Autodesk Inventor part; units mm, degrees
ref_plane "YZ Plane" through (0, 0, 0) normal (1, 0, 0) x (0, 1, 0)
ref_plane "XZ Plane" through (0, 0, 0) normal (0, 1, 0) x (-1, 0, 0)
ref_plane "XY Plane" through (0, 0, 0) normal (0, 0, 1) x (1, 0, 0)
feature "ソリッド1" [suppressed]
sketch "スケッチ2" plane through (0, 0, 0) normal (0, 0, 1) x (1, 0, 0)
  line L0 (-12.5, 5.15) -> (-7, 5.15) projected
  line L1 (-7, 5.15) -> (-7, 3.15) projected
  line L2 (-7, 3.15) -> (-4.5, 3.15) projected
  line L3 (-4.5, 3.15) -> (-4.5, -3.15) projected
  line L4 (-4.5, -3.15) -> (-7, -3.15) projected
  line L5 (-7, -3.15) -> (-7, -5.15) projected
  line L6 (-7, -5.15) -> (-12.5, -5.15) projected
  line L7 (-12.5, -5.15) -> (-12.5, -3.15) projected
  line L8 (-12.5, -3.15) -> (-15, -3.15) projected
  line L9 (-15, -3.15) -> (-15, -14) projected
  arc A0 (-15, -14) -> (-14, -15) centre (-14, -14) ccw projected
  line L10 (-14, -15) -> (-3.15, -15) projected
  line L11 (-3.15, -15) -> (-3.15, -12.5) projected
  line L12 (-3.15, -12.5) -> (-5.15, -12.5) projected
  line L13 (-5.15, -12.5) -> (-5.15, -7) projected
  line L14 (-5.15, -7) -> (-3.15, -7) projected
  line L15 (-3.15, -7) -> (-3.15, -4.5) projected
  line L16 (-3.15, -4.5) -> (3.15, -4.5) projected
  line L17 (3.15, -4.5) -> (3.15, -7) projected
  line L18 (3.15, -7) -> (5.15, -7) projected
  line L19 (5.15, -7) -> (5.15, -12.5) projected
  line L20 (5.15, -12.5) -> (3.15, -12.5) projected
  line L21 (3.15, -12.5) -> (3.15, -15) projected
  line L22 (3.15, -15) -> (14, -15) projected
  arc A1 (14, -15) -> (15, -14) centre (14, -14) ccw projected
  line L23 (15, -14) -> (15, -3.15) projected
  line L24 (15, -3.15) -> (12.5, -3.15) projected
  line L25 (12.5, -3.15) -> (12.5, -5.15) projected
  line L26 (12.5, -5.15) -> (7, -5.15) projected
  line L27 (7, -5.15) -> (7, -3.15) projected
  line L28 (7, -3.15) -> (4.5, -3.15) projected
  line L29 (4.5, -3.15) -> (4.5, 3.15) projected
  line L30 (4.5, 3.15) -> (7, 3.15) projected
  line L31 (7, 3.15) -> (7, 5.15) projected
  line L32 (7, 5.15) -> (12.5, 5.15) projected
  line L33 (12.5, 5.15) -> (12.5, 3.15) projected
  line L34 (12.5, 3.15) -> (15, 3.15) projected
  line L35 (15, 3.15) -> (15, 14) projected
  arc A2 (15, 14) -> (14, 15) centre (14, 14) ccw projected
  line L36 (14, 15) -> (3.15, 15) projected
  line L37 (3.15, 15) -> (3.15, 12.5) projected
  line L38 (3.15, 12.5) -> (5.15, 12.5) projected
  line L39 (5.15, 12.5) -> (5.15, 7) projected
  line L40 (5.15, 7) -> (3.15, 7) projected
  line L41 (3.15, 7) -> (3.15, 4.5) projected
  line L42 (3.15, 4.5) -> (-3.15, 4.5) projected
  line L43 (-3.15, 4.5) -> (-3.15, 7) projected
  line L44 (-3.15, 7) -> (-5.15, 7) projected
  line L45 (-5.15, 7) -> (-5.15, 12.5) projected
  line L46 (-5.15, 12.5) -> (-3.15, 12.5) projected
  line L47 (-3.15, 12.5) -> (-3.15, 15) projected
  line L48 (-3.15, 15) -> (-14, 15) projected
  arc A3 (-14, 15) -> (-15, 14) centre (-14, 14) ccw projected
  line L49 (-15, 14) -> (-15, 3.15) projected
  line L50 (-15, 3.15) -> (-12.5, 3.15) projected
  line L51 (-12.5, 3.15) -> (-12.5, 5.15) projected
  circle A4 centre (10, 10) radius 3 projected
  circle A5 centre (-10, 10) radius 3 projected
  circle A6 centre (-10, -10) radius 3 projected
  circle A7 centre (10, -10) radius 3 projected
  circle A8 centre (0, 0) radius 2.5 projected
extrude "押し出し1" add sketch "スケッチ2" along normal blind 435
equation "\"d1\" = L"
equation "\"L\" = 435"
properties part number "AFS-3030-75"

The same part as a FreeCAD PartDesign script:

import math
import FreeCAD as App
import Part
import Sketcher

V = App.Vector

doc = App.newDocument("Part")
body = doc.addObject("PartDesign::Body", "Body")

# Sketch on XY plane
sketch1 = body.newObject("Sketcher::SketchObject", "Sketch")
sketch1.AttachmentSupport = (doc.getObject("XY_Plane"), [""])
sketch1.MapMode = "FlatFace"
sketch1.addGeometry(Part.LineSegment(V(-12.5, 3.15, 0), V(-12.5, 5.15, 0)), False)
sketch1.addGeometry(Part.LineSegment(V(-12.5, 5.15, 0), V(-7, 5.15, 0)), False)
sketch1.addGeometry(Part.LineSegment(V(-7, 5.15, 0), V(-7, 3.15, 0)), False)
sketch1.addGeometry(Part.LineSegment(V(-7, 3.15, 0), V(-4.5, 3.15, 0)), False)
sketch1.addGeometry(Part.LineSegment(V(-4.5, 3.15, 0), V(-4.5, -3.15, 0)), False)
sketch1.addGeometry(Part.LineSegment(V(-4.5, -3.15, 0), V(-7, -3.15, 0)), False)
sketch1.addGeometry(Part.LineSegment(V(-7, -3.15, 0), V(-7, -5.15, 0)), False)
sketch1.addGeometry(Part.LineSegment(V(-7, -5.15, 0), V(-12.5, -5.15, 0)), False)
sketch1.addGeometry(Part.LineSegment(V(-12.5, -5.15, 0), V(-12.5, -3.15, 0)), False)
sketch1.addGeometry(Part.LineSegment(V(-12.5, -3.15, 0), V(-15, -3.15, 0)), False)
sketch1.addGeometry(Part.LineSegment(V(-15, -3.15, 0), V(-15, -14, 0)), False)
sketch1.addGeometry(Part.ArcOfCircle(Part.Circle(V(-14, -14, 0), V(0, 0, 1), 1), math.radians(180), math.radians(270)), False)
sketch1.addGeometry(Part.LineSegment(V(-14, -15, 0), V(-3.15, -15, 0)), False)
sketch1.addGeometry(Part.LineSegment(V(-3.15, -15, 0), V(-3.15, -12.5, 0)), False)
sketch1.addGeometry(Part.LineSegment(V(-3.15, -12.5, 0), V(-5.15, -12.5, 0)), False)
sketch1.addGeometry(Part.LineSegment(V(-5.15, -12.5, 0), V(-5.15, -7, 0)), False)
sketch1.addGeometry(Part.LineSegment(V(-5.15, -7, 0), V(-3.15, -7, 0)), False)
sketch1.addGeometry(Part.LineSegment(V(-3.15, -7, 0), V(-3.15, -4.5, 0)), False)
sketch1.addGeometry(Part.LineSegment(V(-3.15, -4.5, 0), V(3.15, -4.5, 0)), False)
sketch1.addGeometry(Part.LineSegment(V(3.15, -4.5, 0), V(3.15, -7, 0)), False)
sketch1.addGeometry(Part.LineSegment(V(3.15, -7, 0), V(5.15, -7, 0)), False)
sketch1.addGeometry(Part.LineSegment(V(5.15, -7, 0), V(5.15, -12.5, 0)), False)
sketch1.addGeometry(Part.LineSegment(V(5.15, -12.5, 0), V(3.15, -12.5, 0)), False)
sketch1.addGeometry(Part.LineSegment(V(3.15, -12.5, 0), V(3.15, -15, 0)), False)
sketch1.addGeometry(Part.LineSegment(V(3.15, -15, 0), V(14, -15, 0)), False)
sketch1.addGeometry(Part.ArcOfCircle(Part.Circle(V(14, -14, 0), V(0, 0, 1), 1), math.radians(-90), math.radians(0)), False)
sketch1.addGeometry(Part.LineSegment(V(15, -14, 0), V(15, -3.15, 0)), False)
sketch1.addGeometry(Part.LineSegment(V(15, -3.15, 0), V(12.5, -3.15, 0)), False)
sketch1.addGeometry(Part.LineSegment(V(12.5, -3.15, 0), V(12.5, -5.15, 0)), False)
sketch1.addGeometry(Part.LineSegment(V(12.5, -5.15, 0), V(7, -5.15, 0)), False)
sketch1.addGeometry(Part.LineSegment(V(7, -5.15, 0), V(7, -3.15, 0)), False)
sketch1.addGeometry(Part.LineSegment(V(7, -3.15, 0), V(4.5, -3.15, 0)), False)
sketch1.addGeometry(Part.LineSegment(V(4.5, -3.15, 0), V(4.5, 3.15, 0)), False)
sketch1.addGeometry(Part.LineSegment(V(4.5, 3.15, 0), V(7, 3.15, 0)), False)
sketch1.addGeometry(Part.LineSegment(V(7, 3.15, 0), V(7, 5.15, 0)), False)
sketch1.addGeometry(Part.LineSegment(V(7, 5.15, 0), V(12.5, 5.15, 0)), False)
sketch1.addGeometry(Part.LineSegment(V(12.5, 5.15, 0), V(12.5, 3.15, 0)), False)
sketch1.addGeometry(Part.LineSegment(V(12.5, 3.15, 0), V(15, 3.15, 0)), False)
sketch1.addGeometry(Part.LineSegment(V(15, 3.15, 0), V(15, 14, 0)), False)
sketch1.addGeometry(Part.ArcOfCircle(Part.Circle(V(14, 14, 0), V(0, 0, 1), 1), math.radians(0), math.radians(90)), False)
sketch1.addGeometry(Part.LineSegment(V(14, 15, 0), V(3.15, 15, 0)), False)
sketch1.addGeometry(Part.LineSegment(V(3.15, 15, 0), V(3.15, 12.5, 0)), False)
sketch1.addGeometry(Part.LineSegment(V(3.15, 12.5, 0), V(5.15, 12.5, 0)), False)
sketch1.addGeometry(Part.LineSegment(V(5.15, 12.5, 0), V(5.15, 7, 0)), False)
sketch1.addGeometry(Part.LineSegment(V(5.15, 7, 0), V(3.15, 7, 0)), False)
sketch1.addGeometry(Part.LineSegment(V(3.15, 7, 0), V(3.15, 4.5, 0)), False)
sketch1.addGeometry(Part.LineSegment(V(3.15, 4.5, 0), V(-3.15, 4.5, 0)), False)
sketch1.addGeometry(Part.LineSegment(V(-3.15, 4.5, 0), V(-3.15, 7, 0)), False)
sketch1.addGeometry(Part.LineSegment(V(-3.15, 7, 0), V(-5.15, 7, 0)), False)
sketch1.addGeometry(Part.LineSegment(V(-5.15, 7, 0), V(-5.15, 12.5, 0)), False)
sketch1.addGeometry(Part.LineSegment(V(-5.15, 12.5, 0), V(-3.15, 12.5, 0)), False)
sketch1.addGeometry(Part.LineSegment(V(-3.15, 12.5, 0), V(-3.15, 15, 0)), False)
sketch1.addGeometry(Part.LineSegment(V(-3.15, 15, 0), V(-14, 15, 0)), False)
sketch1.addGeometry(Part.ArcOfCircle(Part.Circle(V(-14, 14, 0), V(0, 0, 1), 1), math.radians(90), math.radians(180)), False)
sketch1.addGeometry(Part.LineSegment(V(-15, 14, 0), V(-15, 3.15, 0)), False)
sketch1.addGeometry(Part.LineSegment(V(-15, 3.15, 0), V(-12.5, 3.15, 0)), False)
sketch1.addGeometry(Part.Circle(V(-10, -10, 0), V(0, 0, 1), 3), False)
sketch1.addGeometry(Part.Circle(V(10, -10, 0), V(0, 0, 1), 3), False)
sketch1.addGeometry(Part.Circle(V(-10, 10, 0), V(0, 0, 1), 3), False)
sketch1.addGeometry(Part.Circle(V(0, 0, 0), V(0, 0, 1), 2.5), False)
sketch1.addGeometry(Part.Circle(V(10, 10, 0), V(0, 0, 1), 3), False)
sketch1.addConstraint(Sketcher.Constraint("Coincident", 0, 2, 1, 1))
sketch1.addConstraint(Sketcher.Constraint("Coincident", 1, 2, 2, 1))
sketch1.addConstraint(Sketcher.Constraint("Coincident", 2, 2, 3, 1))
sketch1.addConstraint(Sketcher.Constraint("Coincident", 3, 2, 4, 1))
sketch1.addConstraint(Sketcher.Constraint("Coincident", 4, 2, 5, 1))
sketch1.addConstraint(Sketcher.Constraint("Coincident", 5, 2, 6, 1))
sketch1.addConstraint(Sketcher.Constraint("Coincident", 6, 2, 7, 1))
sketch1.addConstraint(Sketcher.Constraint("Coincident", 7, 2, 8, 1))
sketch1.addConstraint(Sketcher.Constraint("Coincident", 8, 2, 9, 1))
sketch1.addConstraint(Sketcher.Constraint("Coincident", 9, 2, 10, 1))
sketch1.addConstraint(Sketcher.Constraint("Tangent", 10, 2, 11, 1))
sketch1.addConstraint(Sketcher.Constraint("Tangent", 11, 2, 12, 1))
sketch1.addConstraint(Sketcher.Constraint("Coincident", 12, 2, 13, 1))
sketch1.addConstraint(Sketcher.Constraint("Coincident", 13, 2, 14, 1))
sketch1.addConstraint(Sketcher.Constraint("Coincident", 14, 2, 15, 1))
sketch1.addConstraint(Sketcher.Constraint("Coincident", 15, 2, 16, 1))
sketch1.addConstraint(Sketcher.Constraint("Coincident", 16, 2, 17, 1))
sketch1.addConstraint(Sketcher.Constraint("Coincident", 17, 2, 18, 1))
sketch1.addConstraint(Sketcher.Constraint("Coincident", 18, 2, 19, 1))
sketch1.addConstraint(Sketcher.Constraint("Coincident", 19, 2, 20, 1))
sketch1.addConstraint(Sketcher.Constraint("Coincident", 20, 2, 21, 1))
sketch1.addConstraint(Sketcher.Constraint("Coincident", 21, 2, 22, 1))
sketch1.addConstraint(Sketcher.Constraint("Coincident", 22, 2, 23, 1))
sketch1.addConstraint(Sketcher.Constraint("Coincident", 23, 2, 24, 1))
sketch1.addConstraint(Sketcher.Constraint("Tangent", 24, 2, 25, 1))
sketch1.addConstraint(Sketcher.Constraint("Tangent", 25, 2, 26, 1))
sketch1.addConstraint(Sketcher.Constraint("Coincident", 26, 2, 27, 1))
sketch1.addConstraint(Sketcher.Constraint("Coincident", 27, 2, 28, 1))
sketch1.addConstraint(Sketcher.Constraint("Coincident", 28, 2, 29, 1))
sketch1.addConstraint(Sketcher.Constraint("Coincident", 29, 2, 30, 1))
sketch1.addConstraint(Sketcher.Constraint("Coincident", 30, 2, 31, 1))
sketch1.addConstraint(Sketcher.Constraint("Coincident", 31, 2, 32, 1))
sketch1.addConstraint(Sketcher.Constraint("Coincident", 32, 2, 33, 1))
sketch1.addConstraint(Sketcher.Constraint("Coincident", 33, 2, 34, 1))
sketch1.addConstraint(Sketcher.Constraint("Coincident", 34, 2, 35, 1))
sketch1.addConstraint(Sketcher.Constraint("Coincident", 35, 2, 36, 1))
sketch1.addConstraint(Sketcher.Constraint("Coincident", 36, 2, 37, 1))
sketch1.addConstraint(Sketcher.Constraint("Coincident", 37, 2, 38, 1))
sketch1.addConstraint(Sketcher.Constraint("Tangent", 38, 2, 39, 1))
sketch1.addConstraint(Sketcher.Constraint("Tangent", 39, 2, 40, 1))
sketch1.addConstraint(Sketcher.Constraint("Coincident", 40, 2, 41, 1))
sketch1.addConstraint(Sketcher.Constraint("Coincident", 41, 2, 42, 1))
sketch1.addConstraint(Sketcher.Constraint("Coincident", 42, 2, 43, 1))
sketch1.addConstraint(Sketcher.Constraint("Coincident", 43, 2, 44, 1))
sketch1.addConstraint(Sketcher.Constraint("Coincident", 44, 2, 45, 1))
sketch1.addConstraint(Sketcher.Constraint("Coincident", 45, 2, 46, 1))
sketch1.addConstraint(Sketcher.Constraint("Coincident", 46, 2, 47, 1))
sketch1.addConstraint(Sketcher.Constraint("Coincident", 47, 2, 48, 1))
sketch1.addConstraint(Sketcher.Constraint("Coincident", 48, 2, 49, 1))
sketch1.addConstraint(Sketcher.Constraint("Coincident", 49, 2, 50, 1))
sketch1.addConstraint(Sketcher.Constraint("Coincident", 50, 2, 51, 1))
sketch1.addConstraint(Sketcher.Constraint("Coincident", 51, 2, 52, 1))
sketch1.addConstraint(Sketcher.Constraint("Tangent", 52, 2, 53, 1))
sketch1.addConstraint(Sketcher.Constraint("Tangent", 53, 2, 54, 1))
sketch1.addConstraint(Sketcher.Constraint("Coincident", 54, 2, 55, 1))
sketch1.addConstraint(Sketcher.Constraint("Coincident", 55, 2, 0, 1))
sketch1.addConstraint(Sketcher.Constraint("Vertical", 0))
sketch1.addConstraint(Sketcher.Constraint("Horizontal", 1))
sketch1.addConstraint(Sketcher.Constraint("Vertical", 2))
sketch1.addConstraint(Sketcher.Constraint("Horizontal", 3))
sketch1.addConstraint(Sketcher.Constraint("Vertical", 4))
sketch1.addConstraint(Sketcher.Constraint("Horizontal", 5))
sketch1.addConstraint(Sketcher.Constraint("Vertical", 6))
sketch1.addConstraint(Sketcher.Constraint("Horizontal", 7))
sketch1.addConstraint(Sketcher.Constraint("Vertical", 8))
sketch1.addConstraint(Sketcher.Constraint("Horizontal", 9))
sketch1.addConstraint(Sketcher.Constraint("Vertical", 10))
sketch1.addConstraint(Sketcher.Constraint("Horizontal", 12))
sketch1.addConstraint(Sketcher.Constraint("Vertical", 13))
sketch1.addConstraint(Sketcher.Constraint("Horizontal", 14))
sketch1.addConstraint(Sketcher.Constraint("Vertical", 15))
sketch1.addConstraint(Sketcher.Constraint("Horizontal", 16))
sketch1.addConstraint(Sketcher.Constraint("Vertical", 17))
sketch1.addConstraint(Sketcher.Constraint("Horizontal", 18))
sketch1.addConstraint(Sketcher.Constraint("Vertical", 19))
sketch1.addConstraint(Sketcher.Constraint("Horizontal", 20))
sketch1.addConstraint(Sketcher.Constraint("Vertical", 21))
sketch1.addConstraint(Sketcher.Constraint("Horizontal", 22))
sketch1.addConstraint(Sketcher.Constraint("Vertical", 23))
sketch1.addConstraint(Sketcher.Constraint("Horizontal", 24))
sketch1.addConstraint(Sketcher.Constraint("Vertical", 26))
sketch1.addConstraint(Sketcher.Constraint("Horizontal", 27))
sketch1.addConstraint(Sketcher.Constraint("Vertical", 28))
sketch1.addConstraint(Sketcher.Constraint("Horizontal", 29))
sketch1.addConstraint(Sketcher.Constraint("Vertical", 30))
sketch1.addConstraint(Sketcher.Constraint("Horizontal", 31))
sketch1.addConstraint(Sketcher.Constraint("Vertical", 32))
sketch1.addConstraint(Sketcher.Constraint("Horizontal", 33))
sketch1.addConstraint(Sketcher.Constraint("Vertical", 34))
sketch1.addConstraint(Sketcher.Constraint("Horizontal", 35))
sketch1.addConstraint(Sketcher.Constraint("Vertical", 36))
sketch1.addConstraint(Sketcher.Constraint("Horizontal", 37))
sketch1.addConstraint(Sketcher.Constraint("Vertical", 38))
sketch1.addConstraint(Sketcher.Constraint("Horizontal", 40))
sketch1.addConstraint(Sketcher.Constraint("Vertical", 41))
sketch1.addConstraint(Sketcher.Constraint("Horizontal", 42))
sketch1.addConstraint(Sketcher.Constraint("Vertical", 43))
sketch1.addConstraint(Sketcher.Constraint("Horizontal", 44))
sketch1.addConstraint(Sketcher.Constraint("Vertical", 45))
sketch1.addConstraint(Sketcher.Constraint("Horizontal", 46))
sketch1.addConstraint(Sketcher.Constraint("Vertical", 47))
sketch1.addConstraint(Sketcher.Constraint("Horizontal", 48))
sketch1.addConstraint(Sketcher.Constraint("Vertical", 49))
sketch1.addConstraint(Sketcher.Constraint("Horizontal", 50))
sketch1.addConstraint(Sketcher.Constraint("Vertical", 51))
sketch1.addConstraint(Sketcher.Constraint("Horizontal", 52))
sketch1.addConstraint(Sketcher.Constraint("Vertical", 54))
sketch1.addConstraint(Sketcher.Constraint("Horizontal", 55))
sketch1.addConstraint(Sketcher.Constraint("Coincident", 59, 3, -1, 1))
sketch1.addConstraint(Sketcher.Constraint("Equal", 11, 25))
sketch1.addConstraint(Sketcher.Constraint("Equal", 25, 39))
sketch1.addConstraint(Sketcher.Constraint("Equal", 39, 53))
sketch1.addConstraint(Sketcher.Constraint("Equal", 56, 57))
sketch1.addConstraint(Sketcher.Constraint("Equal", 57, 58))
sketch1.addConstraint(Sketcher.Constraint("Equal", 58, 60))
sketch1.addConstraint(Sketcher.Constraint("Symmetric", 11, 3, 39, 3, -1, 1))
sketch1.addConstraint(Sketcher.Constraint("Symmetric", 25, 3, 53, 3, -1, 1))
sketch1.addConstraint(Sketcher.Constraint("Symmetric", 57, 3, 58, 3, -1, 1))
sketch1.addConstraint(Sketcher.Constraint("Symmetric", 56, 3, 60, 3, -1, 1))
sketch1.addConstraint(Sketcher.Constraint("Symmetric", 0, 2, 28, 2, -1, 1))
sketch1.addConstraint(Sketcher.Constraint("Symmetric", 2, 2, 30, 2, -1, 1))
sketch1.addConstraint(Sketcher.Constraint("Symmetric", 4, 2, 32, 2, -1, 1))
sketch1.addConstraint(Sketcher.Constraint("Symmetric", 6, 2, 34, 2, -1, 1))
sketch1.addConstraint(Sketcher.Constraint("Symmetric", 8, 2, 36, 2, -1, 1))
sketch1.addConstraint(Sketcher.Constraint("Symmetric", 13, 2, 41, 2, -1, 1))
sketch1.addConstraint(Sketcher.Constraint("Symmetric", 15, 2, 43, 2, -1, 1))
sketch1.addConstraint(Sketcher.Constraint("Symmetric", 17, 2, 45, 2, -1, 1))
sketch1.addConstraint(Sketcher.Constraint("Symmetric", 19, 2, 47, 2, -1, 1))
sketch1.addConstraint(Sketcher.Constraint("Symmetric", 21, 2, 49, 2, -1, 1))
sketch1.addConstraint(Sketcher.Constraint("Symmetric", 11, 3, 25, 3, -2))
sketch1.addConstraint(Sketcher.Constraint("Symmetric", 56, 3, 57, 3, -2))
sketch1.addConstraint(Sketcher.Constraint("Symmetric", 16, 2, 19, 2, -2))
sketch1.addConstraint(Sketcher.Constraint("Symmetric", 14, 2, 21, 2, -2))
sketch1.addConstraint(Sketcher.Constraint("Symmetric", 8, 2, 27, 2, -2))
sketch1.addConstraint(Sketcher.Constraint("Symmetric", 6, 2, 29, 2, -2))
sketch1.addConstraint(Sketcher.Constraint("Horizontal", 5, 2, 8, 2))
sketch1.addConstraint(Sketcher.Constraint("Horizontal", 27, 2, 30, 2))
sketch1.addConstraint(Sketcher.Constraint("Horizontal", 37, 2, 54, 2))
sketch1.addConstraint(Sketcher.Constraint("Vertical", 13, 2, 16, 2))
sketch1.addConstraint(Sketcher.Constraint("Vertical", 19, 2, 22, 2))
sketch1.addConstraint(Sketcher.Constraint("Vertical", 47, 2, 50, 2))
sketch1.addConstraint(Sketcher.Constraint("Equal", 5, 9))
sketch1.addConstraint(Sketcher.Constraint("Equal", 50, 0))
sketch1.addConstraint(Sketcher.Constraint("Equal", 46, 4))
sketch1.addConstraint(Sketcher.Constraint("Equal", 52, 10))
sketch1.addConstraint(Sketcher.Constraint("Equal", 55, 13))
sketch1.addConstraint(Sketcher.Constraint("Equal", 35, 15))
sketch1.addConstraint(Sketcher.Constraint("Equal", 13, 17))
sketch1.addConstraint(Sketcher.Constraint("Diameter", 56, 6.0))
sketch1.addConstraint(Sketcher.Constraint("Diameter", 59, 5.0))
sketch1.addConstraint(Sketcher.Constraint("Radius", 11, 1.0))
sketch1.addConstraint(Sketcher.Constraint("DistanceX", 14, 2, 14, 1, 2.0))
sketch1.addConstraint(Sketcher.Constraint("DistanceX", 1, 1, 1, 2, 5.5))
sketch1.addConstraint(Sketcher.Constraint("DistanceX", 3, 1, 3, 2, 2.5))
sketch1.addConstraint(Sketcher.Constraint("DistanceX", 18, 1, 18, 2, 6.3))
sketch1.addConstraint(Sketcher.Constraint("DistanceX", 11, 3, -1, 1, 14.0))
sketch1.addConstraint(Sketcher.Constraint("DistanceX", 56, 3, -1, 1, 10.0))
sketch1.addConstraint(Sketcher.Constraint("DistanceY", 56, 3, -1, 1, 10.0))
pad1 = body.newObject("PartDesign::Pad", "Pad")
pad1.Profile = sketch1
pad1.Length = 435

doc.recompute()
